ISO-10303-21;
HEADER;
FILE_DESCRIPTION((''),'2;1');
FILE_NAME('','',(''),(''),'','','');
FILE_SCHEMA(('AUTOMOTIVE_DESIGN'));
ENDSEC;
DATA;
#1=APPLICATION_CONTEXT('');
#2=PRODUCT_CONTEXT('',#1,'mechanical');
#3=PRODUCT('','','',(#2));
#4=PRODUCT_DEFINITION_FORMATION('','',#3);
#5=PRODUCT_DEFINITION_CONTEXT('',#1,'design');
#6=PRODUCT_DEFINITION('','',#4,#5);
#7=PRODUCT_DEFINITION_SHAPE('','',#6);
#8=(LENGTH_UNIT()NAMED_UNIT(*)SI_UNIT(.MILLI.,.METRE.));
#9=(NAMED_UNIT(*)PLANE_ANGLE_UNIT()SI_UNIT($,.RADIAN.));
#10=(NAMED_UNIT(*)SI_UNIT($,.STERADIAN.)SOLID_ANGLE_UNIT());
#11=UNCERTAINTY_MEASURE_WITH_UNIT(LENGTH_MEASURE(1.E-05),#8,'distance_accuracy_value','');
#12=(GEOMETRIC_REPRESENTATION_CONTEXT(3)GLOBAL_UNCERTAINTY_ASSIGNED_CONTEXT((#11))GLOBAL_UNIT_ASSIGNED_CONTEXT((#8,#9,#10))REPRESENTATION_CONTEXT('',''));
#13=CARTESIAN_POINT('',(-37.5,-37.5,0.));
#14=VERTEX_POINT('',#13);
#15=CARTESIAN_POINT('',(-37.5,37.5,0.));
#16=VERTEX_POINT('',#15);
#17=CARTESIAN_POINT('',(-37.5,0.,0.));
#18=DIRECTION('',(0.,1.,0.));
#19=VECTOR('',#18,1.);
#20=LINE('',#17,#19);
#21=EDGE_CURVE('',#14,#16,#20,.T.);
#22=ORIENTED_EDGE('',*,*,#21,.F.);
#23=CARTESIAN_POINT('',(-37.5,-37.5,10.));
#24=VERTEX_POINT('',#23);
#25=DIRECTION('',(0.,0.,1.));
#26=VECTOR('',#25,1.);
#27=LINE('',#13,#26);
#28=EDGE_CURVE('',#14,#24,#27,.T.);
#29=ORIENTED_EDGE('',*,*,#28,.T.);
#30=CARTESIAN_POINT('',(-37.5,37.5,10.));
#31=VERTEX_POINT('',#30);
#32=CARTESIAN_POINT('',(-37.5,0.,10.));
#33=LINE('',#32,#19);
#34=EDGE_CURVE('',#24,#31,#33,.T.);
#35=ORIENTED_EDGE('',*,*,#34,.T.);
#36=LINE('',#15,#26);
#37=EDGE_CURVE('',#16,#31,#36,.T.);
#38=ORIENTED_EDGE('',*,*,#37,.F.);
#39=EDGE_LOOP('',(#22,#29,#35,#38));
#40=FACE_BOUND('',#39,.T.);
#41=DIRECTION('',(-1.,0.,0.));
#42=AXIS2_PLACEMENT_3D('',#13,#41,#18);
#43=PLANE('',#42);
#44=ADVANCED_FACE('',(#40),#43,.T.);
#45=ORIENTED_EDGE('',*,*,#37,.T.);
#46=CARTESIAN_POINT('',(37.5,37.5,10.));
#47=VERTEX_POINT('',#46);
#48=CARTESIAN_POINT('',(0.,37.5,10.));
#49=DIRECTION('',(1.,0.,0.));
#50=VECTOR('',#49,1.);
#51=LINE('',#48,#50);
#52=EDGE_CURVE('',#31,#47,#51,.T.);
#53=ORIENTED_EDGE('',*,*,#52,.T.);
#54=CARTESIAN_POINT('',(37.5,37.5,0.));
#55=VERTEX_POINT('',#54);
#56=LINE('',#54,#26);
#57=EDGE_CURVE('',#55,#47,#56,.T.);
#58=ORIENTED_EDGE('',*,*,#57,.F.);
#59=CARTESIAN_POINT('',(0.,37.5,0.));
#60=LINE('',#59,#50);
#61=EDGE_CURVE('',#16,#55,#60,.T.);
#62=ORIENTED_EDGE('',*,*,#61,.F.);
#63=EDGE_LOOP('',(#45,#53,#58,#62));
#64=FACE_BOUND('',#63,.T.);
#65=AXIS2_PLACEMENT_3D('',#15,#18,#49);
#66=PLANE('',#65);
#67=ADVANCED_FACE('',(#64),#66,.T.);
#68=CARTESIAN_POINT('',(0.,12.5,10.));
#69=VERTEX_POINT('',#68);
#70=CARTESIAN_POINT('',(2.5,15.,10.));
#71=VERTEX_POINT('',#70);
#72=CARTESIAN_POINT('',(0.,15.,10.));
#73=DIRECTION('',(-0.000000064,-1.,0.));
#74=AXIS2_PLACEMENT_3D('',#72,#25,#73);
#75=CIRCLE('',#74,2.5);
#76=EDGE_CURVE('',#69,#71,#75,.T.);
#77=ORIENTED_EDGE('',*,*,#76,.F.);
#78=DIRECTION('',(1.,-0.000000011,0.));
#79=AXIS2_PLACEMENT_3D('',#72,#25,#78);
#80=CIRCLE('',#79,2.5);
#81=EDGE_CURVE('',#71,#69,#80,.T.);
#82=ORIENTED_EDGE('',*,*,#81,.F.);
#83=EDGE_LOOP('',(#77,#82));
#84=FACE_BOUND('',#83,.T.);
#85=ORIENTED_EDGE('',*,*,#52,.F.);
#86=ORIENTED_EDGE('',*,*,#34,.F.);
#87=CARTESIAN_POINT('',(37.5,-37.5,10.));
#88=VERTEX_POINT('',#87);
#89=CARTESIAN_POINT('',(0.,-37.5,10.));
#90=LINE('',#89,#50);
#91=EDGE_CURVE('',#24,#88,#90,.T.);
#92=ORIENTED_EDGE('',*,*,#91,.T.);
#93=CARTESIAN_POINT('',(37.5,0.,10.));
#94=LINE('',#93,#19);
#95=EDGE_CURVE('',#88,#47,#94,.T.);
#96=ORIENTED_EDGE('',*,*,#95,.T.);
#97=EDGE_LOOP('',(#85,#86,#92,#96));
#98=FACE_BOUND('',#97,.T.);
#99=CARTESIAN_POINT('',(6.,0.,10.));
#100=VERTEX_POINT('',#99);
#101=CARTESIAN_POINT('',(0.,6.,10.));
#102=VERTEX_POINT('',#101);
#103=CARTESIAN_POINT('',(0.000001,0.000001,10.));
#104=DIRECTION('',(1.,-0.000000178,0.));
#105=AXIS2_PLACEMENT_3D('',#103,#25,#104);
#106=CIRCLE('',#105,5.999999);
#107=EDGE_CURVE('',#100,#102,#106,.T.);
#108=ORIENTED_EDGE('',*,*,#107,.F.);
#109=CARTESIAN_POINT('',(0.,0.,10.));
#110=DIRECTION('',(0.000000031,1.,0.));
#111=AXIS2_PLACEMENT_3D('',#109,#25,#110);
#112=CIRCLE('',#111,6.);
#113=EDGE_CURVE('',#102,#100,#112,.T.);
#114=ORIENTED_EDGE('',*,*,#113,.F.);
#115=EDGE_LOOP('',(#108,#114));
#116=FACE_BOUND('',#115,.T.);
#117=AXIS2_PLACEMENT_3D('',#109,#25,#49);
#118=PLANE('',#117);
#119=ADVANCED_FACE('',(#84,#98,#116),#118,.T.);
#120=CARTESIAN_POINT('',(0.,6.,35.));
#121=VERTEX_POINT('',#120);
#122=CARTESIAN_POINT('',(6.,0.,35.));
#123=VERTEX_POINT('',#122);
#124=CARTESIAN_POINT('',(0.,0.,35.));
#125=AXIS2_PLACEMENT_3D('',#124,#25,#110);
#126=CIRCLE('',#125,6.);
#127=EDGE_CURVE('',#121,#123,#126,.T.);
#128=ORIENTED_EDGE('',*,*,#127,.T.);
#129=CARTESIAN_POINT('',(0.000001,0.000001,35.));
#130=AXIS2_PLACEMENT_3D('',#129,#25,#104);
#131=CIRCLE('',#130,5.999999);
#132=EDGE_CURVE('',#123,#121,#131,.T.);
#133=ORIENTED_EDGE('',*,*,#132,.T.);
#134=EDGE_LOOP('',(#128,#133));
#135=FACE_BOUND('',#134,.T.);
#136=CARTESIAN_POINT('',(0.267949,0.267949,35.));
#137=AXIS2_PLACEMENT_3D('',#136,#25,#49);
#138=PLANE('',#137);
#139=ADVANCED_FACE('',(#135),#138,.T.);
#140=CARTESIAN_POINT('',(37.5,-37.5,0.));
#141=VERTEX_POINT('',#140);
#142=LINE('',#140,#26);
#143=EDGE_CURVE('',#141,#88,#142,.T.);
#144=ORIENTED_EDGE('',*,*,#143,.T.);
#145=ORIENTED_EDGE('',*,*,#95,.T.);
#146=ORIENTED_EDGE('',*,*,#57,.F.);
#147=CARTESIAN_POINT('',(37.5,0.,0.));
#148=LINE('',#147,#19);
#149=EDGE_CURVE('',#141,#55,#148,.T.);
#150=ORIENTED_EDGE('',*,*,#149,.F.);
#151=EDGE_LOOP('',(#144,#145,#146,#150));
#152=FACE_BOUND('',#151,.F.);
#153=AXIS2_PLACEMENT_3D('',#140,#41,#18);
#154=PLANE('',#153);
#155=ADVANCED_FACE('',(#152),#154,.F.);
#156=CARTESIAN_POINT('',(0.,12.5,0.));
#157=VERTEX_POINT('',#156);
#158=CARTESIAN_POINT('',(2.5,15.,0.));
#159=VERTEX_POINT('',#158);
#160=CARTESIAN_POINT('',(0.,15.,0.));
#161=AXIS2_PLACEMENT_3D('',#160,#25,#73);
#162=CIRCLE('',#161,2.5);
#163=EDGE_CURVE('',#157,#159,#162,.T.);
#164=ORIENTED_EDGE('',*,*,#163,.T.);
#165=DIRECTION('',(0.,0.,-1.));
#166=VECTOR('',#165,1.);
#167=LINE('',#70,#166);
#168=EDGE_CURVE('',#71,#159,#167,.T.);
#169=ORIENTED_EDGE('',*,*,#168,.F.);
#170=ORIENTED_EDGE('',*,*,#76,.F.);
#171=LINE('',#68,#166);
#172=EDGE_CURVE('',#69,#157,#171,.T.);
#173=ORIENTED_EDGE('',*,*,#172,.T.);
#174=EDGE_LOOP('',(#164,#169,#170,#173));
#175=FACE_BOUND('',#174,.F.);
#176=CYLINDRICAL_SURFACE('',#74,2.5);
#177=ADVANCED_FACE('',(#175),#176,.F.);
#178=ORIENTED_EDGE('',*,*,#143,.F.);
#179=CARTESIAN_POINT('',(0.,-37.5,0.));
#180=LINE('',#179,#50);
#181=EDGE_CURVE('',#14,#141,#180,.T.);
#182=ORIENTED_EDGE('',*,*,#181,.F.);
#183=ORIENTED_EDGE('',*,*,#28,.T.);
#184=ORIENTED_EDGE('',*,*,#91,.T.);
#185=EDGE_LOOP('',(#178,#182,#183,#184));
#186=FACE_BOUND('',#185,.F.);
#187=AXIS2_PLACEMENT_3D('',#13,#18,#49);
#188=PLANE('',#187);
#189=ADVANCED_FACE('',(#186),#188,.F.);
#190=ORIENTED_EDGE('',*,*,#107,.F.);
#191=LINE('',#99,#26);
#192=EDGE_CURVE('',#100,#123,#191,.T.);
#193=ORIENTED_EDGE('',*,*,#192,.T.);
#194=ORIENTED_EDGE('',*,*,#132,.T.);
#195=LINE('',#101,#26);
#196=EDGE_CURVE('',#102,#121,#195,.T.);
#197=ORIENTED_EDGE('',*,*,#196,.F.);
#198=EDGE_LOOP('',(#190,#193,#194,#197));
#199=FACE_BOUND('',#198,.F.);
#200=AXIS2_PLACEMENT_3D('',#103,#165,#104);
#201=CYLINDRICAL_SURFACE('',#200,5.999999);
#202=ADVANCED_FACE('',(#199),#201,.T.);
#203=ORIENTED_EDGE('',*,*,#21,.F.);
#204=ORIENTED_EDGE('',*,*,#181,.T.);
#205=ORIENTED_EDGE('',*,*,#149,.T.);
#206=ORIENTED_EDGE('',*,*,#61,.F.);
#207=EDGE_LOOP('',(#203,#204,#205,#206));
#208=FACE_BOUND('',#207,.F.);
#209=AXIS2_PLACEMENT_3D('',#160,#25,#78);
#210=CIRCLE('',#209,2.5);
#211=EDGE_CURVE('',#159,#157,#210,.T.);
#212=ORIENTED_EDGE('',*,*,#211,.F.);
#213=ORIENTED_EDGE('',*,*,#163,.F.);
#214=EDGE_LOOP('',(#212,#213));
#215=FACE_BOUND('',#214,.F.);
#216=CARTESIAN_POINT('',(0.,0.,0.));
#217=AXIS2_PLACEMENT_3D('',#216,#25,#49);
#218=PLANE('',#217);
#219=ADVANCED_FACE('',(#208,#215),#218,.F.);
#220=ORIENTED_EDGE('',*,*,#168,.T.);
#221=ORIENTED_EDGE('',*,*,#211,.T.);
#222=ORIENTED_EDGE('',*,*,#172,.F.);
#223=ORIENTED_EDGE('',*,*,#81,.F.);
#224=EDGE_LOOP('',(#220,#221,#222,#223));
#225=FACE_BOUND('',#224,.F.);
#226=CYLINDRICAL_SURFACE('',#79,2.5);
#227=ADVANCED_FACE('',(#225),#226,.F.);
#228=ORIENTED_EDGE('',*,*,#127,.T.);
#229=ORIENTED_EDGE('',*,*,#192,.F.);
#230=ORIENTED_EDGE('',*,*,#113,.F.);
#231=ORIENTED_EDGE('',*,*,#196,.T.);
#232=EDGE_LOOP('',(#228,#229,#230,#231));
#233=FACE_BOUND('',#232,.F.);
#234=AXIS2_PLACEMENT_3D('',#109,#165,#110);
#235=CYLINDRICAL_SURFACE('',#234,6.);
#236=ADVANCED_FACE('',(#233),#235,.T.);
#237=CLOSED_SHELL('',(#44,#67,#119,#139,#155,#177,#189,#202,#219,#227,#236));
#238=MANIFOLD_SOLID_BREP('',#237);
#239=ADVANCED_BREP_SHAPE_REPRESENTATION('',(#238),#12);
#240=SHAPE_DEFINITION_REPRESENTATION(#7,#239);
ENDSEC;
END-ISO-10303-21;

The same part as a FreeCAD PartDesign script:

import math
import FreeCAD as App
import Part
import Sketcher
Q = App.Units.Quantity


def add_polygon(sketch, points):
    """Adds a closed chain of lines whose ends are joined by coincident constraints."""
    first, n = sketch.GeometryCount, len(points)
    for a, b in zip(points, points[1:] + points[:1]):
        sketch.addGeometry(Part.LineSegment(App.Vector(*a, 0), App.Vector(*b, 0)), False)
    for i in range(n):
        sketch.addConstraint(Sketcher.Constraint("Coincident", first + i, 2, first + (i + 1) % n, 1))

doc = App.newDocument("Part")
body = doc.addObject("PartDesign::Body", "Body")

sketch1 = body.newObject("Sketcher::SketchObject", "Sketch")
sketch1.AttachmentSupport = (doc.getObject("XY_Plane"), [""])
sketch1.MapMode = "FlatFace"
add_polygon(sketch1, [(-37.5, 37.5), (-37.5, -37.5), (37.5, -37.5), (37.5, 37.5)])
sketch1.addConstraint([
    Sketcher.Constraint("Vertical", 0),
    Sketcher.Constraint("Horizontal", 1),
    Sketcher.Constraint("Vertical", 2),
    Sketcher.Constraint("Horizontal", 3),
    Sketcher.Constraint("Symmetric", 0, 2, 2, 2, -1, 1),
    Sketcher.Constraint("Equal", 3, 0),
    Sketcher.Constraint("DistanceX", 1, 1, 1, 2, Q("75 mm")),
])
pad1 = body.newObject("PartDesign::Pad", "Pad")
pad1.Profile = sketch1
pad1.Length = 10

sketch2 = body.newObject("Sketcher::SketchObject", "Sketch001")
sketch2.AttachmentSupport = (doc.getObject("XY_Plane"), [""])
sketch2.MapMode = "FlatFace"
sketch2.AttachmentOffset = App.Placement(App.Vector(0, 0, 10), App.Rotation())
sketch2.addGeometry([
    Part.ArcOfCircle(Part.Circle(App.Vector(0, 0, 0), App.Vector(0, 0, 1), 6), math.radians(89.999998), math.radians(360.000002)),
    Part.ArcOfCircle(Part.Circle(App.Vector(0.000001, 0.000001, 0), App.Vector(0, 0, 1), 5.999999), math.radians(-0.00001), math.radians(90.00001)),
], False)
sketch2.addConstraint([
    Sketcher.Constraint("Tangent", 0, 1, 1, 2),
    Sketcher.Constraint("Coincident", 1, 1, 0, 2),
    Sketcher.Constraint("Coincident", 0, 3, -1, 1),
    Sketcher.Constraint("PointOnObject", 0, 1, -2),
    Sketcher.Constraint("PointOnObject", 1, 1, -1),
    Sketcher.Constraint("Radius", 0, Q("6 mm")),
])
pad2 = body.newObject("PartDesign::Pad", "Pad001")
pad2.Profile = sketch2
pad2.Length = 25

sketch3 = body.newObject("Sketcher::SketchObject", "Sketch002")
sketch3.AttachmentSupport = (doc.getObject("XY_Plane"), [""])
sketch3.MapMode = "FlatFace"
sketch3.AttachmentOffset = App.Placement(App.Vector(0, 0, 10), App.Rotation())
sketch3.addGeometry([
    Part.ArcOfCircle(Part.Circle(App.Vector(0, 15, 0), App.Vector(0, 0, 1), 2.5), math.radians(-0.000001), math.radians(270.000001)),
    Part.ArcOfCircle(Part.Circle(App.Vector(0, 15, 0), App.Vector(0, 0, 1), 2.5), math.radians(-90.000004), math.radians(0.000004)),
], False)
sketch3.addConstraint([
    Sketcher.Constraint("Tangent", 0, 1, 1, 2),
    Sketcher.Constraint("Coincident", 1, 1, 0, 2),
    Sketcher.Constraint("PointOnObject", 0, 3, -2),
    Sketcher.Constraint("PointOnObject", 1, 1, -2),
    Sketcher.Constraint("Horizontal", 1, 3, 0, 1),
    Sketcher.Constraint("Radius", 0, Q("2.5 mm")),
    Sketcher.Constraint("DistanceY", -1, 1, 0, 3, Q("15 mm")),
])
pocket1 = body.newObject("PartDesign::Pocket", "Pocket")
pocket1.Profile = sketch3
pocket1.Length = 10

doc.recompute()
